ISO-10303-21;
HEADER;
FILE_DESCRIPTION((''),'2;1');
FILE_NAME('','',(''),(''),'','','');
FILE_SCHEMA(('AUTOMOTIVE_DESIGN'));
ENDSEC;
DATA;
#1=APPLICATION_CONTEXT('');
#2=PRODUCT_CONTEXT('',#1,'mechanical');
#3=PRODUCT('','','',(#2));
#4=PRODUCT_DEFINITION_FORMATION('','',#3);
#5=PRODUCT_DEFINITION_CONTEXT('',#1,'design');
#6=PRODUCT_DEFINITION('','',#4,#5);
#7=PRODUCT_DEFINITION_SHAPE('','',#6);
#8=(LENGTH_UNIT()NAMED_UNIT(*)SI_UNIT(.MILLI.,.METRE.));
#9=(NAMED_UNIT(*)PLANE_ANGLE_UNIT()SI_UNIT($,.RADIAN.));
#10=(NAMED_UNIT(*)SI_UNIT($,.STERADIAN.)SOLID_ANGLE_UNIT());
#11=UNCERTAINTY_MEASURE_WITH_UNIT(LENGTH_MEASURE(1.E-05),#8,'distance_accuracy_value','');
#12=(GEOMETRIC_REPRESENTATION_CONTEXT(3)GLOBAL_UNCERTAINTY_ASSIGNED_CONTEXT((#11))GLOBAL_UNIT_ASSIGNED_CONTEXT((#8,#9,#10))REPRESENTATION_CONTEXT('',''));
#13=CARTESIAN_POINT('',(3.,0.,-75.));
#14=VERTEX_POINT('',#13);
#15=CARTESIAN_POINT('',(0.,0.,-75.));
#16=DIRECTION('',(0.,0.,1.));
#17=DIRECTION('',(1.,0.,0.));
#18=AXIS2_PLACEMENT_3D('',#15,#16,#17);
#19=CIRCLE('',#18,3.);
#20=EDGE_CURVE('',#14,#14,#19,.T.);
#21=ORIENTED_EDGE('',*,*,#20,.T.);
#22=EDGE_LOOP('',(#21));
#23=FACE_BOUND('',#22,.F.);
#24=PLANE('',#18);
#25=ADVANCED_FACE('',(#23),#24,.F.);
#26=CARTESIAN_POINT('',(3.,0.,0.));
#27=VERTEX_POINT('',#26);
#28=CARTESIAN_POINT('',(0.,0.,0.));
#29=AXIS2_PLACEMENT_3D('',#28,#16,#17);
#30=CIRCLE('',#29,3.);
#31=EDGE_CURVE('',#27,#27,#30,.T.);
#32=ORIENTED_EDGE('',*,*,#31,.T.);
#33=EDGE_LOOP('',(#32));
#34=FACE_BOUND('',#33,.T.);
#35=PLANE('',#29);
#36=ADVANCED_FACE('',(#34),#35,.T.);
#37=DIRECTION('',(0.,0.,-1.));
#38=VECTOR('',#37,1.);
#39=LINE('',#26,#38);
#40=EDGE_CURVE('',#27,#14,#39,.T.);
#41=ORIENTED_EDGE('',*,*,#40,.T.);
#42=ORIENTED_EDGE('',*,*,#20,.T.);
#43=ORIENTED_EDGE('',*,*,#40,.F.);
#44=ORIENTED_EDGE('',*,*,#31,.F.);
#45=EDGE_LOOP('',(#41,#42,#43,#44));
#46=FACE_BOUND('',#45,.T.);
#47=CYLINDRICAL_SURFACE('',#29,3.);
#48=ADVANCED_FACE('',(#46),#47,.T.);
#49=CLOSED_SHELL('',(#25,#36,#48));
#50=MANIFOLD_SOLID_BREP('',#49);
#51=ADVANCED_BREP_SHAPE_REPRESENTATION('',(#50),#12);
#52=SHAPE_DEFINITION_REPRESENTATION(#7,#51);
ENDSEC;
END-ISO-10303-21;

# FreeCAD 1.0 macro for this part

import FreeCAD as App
import Part
import Sketcher
Q = App.Units.Quantity

doc = App.newDocument("Part")
body = doc.addObject("PartDesign::Body", "Body")

# Sketch on XY plane
sketch1 = doc.addObject("Sketcher::SketchObject", "Sketch")
body.addObject(sketch1)
sketch1.AttachmentSupport = (doc.XY_Plane, [""])
sketch1.MapMode = "FlatFace"
sketch1.addGeometry(Part.Circle(App.Vector(0, 0, 0), App.Vector(0, 0, 1), 3), False)
sketch1.addConstraint(Sketcher.Constraint("Coincident", 0, 3, -1, 1))
sketch1.addConstraint(Sketcher.Constraint("Diameter", 0, Q("6 mm")))
pad1 = doc.addObject("PartDesign::Pad", "Pad")
body.addObject(pad1)
pad1.Profile = sketch1
pad1.Length = 75
pad1.Reversed = True

doc.recompute()
